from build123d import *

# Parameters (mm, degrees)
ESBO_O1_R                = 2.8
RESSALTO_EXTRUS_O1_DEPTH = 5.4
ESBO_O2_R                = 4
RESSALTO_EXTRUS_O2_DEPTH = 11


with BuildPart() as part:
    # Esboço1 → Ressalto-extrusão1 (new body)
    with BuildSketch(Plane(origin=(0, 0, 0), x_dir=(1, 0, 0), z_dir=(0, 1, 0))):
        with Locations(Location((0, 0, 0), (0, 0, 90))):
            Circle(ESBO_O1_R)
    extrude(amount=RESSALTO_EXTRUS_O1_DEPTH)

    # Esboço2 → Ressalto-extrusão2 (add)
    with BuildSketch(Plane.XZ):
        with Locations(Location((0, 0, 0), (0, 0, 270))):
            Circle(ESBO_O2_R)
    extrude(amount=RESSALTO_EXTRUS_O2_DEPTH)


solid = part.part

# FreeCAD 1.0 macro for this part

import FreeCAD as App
import Part
import Sketcher
Q = App.Units.Quantity

doc = App.newDocument("Part")
body = doc.addObject("PartDesign::Body", "Body")

# Sketch on XZ plane
sketch1 = body.newObject("Sketcher::SketchObject", "Sketch")
sketch1.AttachmentSupport = (doc.getObject("XZ_Plane"), [""])
sketch1.MapMode = "FlatFace"
sketch1.addGeometry(Part.Circle(App.Vector(0, 0, 0), App.Vector(0, 0, 1), 2.8), False)
sketch1.addConstraint([
    Sketcher.Constraint("Coincident", 0, 3, -1, 1),
    Sketcher.Constraint("Diameter", 0, Q("5.6 mm")),
])
pad1 = body.newObject("PartDesign::Pad", "Pad")
pad1.Profile = sketch1
pad1.Length = 5.4
pad1.Reversed = True

# Sketch on XZ plane
sketch2 = body.newObject("Sketcher::SketchObject", "Sketch001")
sketch2.AttachmentSupport = (doc.getObject("XZ_Plane"), [""])
sketch2.MapMode = "FlatFace"
sketch2.addGeometry(Part.Circle(App.Vector(0, 0, 0), App.Vector(0, 0, 1), 4), False)
sketch2.addConstraint([
    Sketcher.Constraint("Coincident", 0, 3, -1, 1),
    Sketcher.Constraint("Diameter", 0, Q("8 mm")),
])
pad2 = body.newObject("PartDesign::Pad", "Pad001")
pad2.Profile = sketch2
pad2.Length = 11

doc.recompute()
